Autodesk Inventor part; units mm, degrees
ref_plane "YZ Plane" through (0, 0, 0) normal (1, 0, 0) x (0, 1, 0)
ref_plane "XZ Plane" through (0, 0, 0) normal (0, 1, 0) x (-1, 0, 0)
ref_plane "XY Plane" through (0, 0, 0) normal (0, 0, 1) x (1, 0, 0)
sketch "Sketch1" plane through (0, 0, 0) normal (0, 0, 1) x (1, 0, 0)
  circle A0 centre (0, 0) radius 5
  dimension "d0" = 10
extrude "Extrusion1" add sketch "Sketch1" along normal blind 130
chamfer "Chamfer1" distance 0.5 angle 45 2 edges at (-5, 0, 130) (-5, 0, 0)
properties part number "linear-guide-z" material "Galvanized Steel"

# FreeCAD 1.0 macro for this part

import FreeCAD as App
import Part
import Sketcher


def edges_at(feature, points):
    """Names of the edges that pass closest to the given points."""
    edges = feature.Shape.Edges
    near = lambda p: min(range(len(edges)), key=lambda i: edges[i].distToShape(Part.Vertex(*p))[0])
    return sorted({f"Edge{near(p) + 1}" for p in points})

doc = App.newDocument("Part")
params = doc.addObject("Spreadsheet::Sheet", "Params")
for row, (alias, value) in enumerate([
    ("sketch1_diameter", "10 mm"),
    ("pad1_length", "130 mm"),
    ("chamfer_size", "0.5 mm"),
], start=1):
    params.set(f"A{row}", alias)
    params.set(f"B{row}", "=" + value)
    params.setAlias(f"B{row}", alias)

body = doc.addObject("PartDesign::Body", "Body")

# Sketch on XY plane
sketch1 = body.newObject("Sketcher::SketchObject", "Sketch")
sketch1.AttachmentSupport = (doc.getObject("XY_Plane"), [""])
sketch1.MapMode = "FlatFace"
sketch1.addGeometry(Part.Circle(App.Vector(0, 0, 0), App.Vector(0, 0, 1), 5), False)
sketch1.addConstraint([
    Sketcher.Constraint("Coincident", 0, 3, -1, 1),
    Sketcher.Constraint("Diameter", 0, 10.0),
])
sketch1.setExpression("Constraints[1]", "Params.sketch1_diameter")
pad1 = body.newObject("PartDesign::Pad", "Pad")
pad1.Profile = sketch1
pad1.setExpression("Length", "Params.pad1_length")
doc.recompute()

chamfer = body.newObject("PartDesign::Chamfer", "Chamfer")
chamfer.Base = (pad1, edges_at(pad1, [(-5, 0, 130), (-5, 0, 0)]))
chamfer.setExpression("Size", "Params.chamfer_size")

doc.recompute()
